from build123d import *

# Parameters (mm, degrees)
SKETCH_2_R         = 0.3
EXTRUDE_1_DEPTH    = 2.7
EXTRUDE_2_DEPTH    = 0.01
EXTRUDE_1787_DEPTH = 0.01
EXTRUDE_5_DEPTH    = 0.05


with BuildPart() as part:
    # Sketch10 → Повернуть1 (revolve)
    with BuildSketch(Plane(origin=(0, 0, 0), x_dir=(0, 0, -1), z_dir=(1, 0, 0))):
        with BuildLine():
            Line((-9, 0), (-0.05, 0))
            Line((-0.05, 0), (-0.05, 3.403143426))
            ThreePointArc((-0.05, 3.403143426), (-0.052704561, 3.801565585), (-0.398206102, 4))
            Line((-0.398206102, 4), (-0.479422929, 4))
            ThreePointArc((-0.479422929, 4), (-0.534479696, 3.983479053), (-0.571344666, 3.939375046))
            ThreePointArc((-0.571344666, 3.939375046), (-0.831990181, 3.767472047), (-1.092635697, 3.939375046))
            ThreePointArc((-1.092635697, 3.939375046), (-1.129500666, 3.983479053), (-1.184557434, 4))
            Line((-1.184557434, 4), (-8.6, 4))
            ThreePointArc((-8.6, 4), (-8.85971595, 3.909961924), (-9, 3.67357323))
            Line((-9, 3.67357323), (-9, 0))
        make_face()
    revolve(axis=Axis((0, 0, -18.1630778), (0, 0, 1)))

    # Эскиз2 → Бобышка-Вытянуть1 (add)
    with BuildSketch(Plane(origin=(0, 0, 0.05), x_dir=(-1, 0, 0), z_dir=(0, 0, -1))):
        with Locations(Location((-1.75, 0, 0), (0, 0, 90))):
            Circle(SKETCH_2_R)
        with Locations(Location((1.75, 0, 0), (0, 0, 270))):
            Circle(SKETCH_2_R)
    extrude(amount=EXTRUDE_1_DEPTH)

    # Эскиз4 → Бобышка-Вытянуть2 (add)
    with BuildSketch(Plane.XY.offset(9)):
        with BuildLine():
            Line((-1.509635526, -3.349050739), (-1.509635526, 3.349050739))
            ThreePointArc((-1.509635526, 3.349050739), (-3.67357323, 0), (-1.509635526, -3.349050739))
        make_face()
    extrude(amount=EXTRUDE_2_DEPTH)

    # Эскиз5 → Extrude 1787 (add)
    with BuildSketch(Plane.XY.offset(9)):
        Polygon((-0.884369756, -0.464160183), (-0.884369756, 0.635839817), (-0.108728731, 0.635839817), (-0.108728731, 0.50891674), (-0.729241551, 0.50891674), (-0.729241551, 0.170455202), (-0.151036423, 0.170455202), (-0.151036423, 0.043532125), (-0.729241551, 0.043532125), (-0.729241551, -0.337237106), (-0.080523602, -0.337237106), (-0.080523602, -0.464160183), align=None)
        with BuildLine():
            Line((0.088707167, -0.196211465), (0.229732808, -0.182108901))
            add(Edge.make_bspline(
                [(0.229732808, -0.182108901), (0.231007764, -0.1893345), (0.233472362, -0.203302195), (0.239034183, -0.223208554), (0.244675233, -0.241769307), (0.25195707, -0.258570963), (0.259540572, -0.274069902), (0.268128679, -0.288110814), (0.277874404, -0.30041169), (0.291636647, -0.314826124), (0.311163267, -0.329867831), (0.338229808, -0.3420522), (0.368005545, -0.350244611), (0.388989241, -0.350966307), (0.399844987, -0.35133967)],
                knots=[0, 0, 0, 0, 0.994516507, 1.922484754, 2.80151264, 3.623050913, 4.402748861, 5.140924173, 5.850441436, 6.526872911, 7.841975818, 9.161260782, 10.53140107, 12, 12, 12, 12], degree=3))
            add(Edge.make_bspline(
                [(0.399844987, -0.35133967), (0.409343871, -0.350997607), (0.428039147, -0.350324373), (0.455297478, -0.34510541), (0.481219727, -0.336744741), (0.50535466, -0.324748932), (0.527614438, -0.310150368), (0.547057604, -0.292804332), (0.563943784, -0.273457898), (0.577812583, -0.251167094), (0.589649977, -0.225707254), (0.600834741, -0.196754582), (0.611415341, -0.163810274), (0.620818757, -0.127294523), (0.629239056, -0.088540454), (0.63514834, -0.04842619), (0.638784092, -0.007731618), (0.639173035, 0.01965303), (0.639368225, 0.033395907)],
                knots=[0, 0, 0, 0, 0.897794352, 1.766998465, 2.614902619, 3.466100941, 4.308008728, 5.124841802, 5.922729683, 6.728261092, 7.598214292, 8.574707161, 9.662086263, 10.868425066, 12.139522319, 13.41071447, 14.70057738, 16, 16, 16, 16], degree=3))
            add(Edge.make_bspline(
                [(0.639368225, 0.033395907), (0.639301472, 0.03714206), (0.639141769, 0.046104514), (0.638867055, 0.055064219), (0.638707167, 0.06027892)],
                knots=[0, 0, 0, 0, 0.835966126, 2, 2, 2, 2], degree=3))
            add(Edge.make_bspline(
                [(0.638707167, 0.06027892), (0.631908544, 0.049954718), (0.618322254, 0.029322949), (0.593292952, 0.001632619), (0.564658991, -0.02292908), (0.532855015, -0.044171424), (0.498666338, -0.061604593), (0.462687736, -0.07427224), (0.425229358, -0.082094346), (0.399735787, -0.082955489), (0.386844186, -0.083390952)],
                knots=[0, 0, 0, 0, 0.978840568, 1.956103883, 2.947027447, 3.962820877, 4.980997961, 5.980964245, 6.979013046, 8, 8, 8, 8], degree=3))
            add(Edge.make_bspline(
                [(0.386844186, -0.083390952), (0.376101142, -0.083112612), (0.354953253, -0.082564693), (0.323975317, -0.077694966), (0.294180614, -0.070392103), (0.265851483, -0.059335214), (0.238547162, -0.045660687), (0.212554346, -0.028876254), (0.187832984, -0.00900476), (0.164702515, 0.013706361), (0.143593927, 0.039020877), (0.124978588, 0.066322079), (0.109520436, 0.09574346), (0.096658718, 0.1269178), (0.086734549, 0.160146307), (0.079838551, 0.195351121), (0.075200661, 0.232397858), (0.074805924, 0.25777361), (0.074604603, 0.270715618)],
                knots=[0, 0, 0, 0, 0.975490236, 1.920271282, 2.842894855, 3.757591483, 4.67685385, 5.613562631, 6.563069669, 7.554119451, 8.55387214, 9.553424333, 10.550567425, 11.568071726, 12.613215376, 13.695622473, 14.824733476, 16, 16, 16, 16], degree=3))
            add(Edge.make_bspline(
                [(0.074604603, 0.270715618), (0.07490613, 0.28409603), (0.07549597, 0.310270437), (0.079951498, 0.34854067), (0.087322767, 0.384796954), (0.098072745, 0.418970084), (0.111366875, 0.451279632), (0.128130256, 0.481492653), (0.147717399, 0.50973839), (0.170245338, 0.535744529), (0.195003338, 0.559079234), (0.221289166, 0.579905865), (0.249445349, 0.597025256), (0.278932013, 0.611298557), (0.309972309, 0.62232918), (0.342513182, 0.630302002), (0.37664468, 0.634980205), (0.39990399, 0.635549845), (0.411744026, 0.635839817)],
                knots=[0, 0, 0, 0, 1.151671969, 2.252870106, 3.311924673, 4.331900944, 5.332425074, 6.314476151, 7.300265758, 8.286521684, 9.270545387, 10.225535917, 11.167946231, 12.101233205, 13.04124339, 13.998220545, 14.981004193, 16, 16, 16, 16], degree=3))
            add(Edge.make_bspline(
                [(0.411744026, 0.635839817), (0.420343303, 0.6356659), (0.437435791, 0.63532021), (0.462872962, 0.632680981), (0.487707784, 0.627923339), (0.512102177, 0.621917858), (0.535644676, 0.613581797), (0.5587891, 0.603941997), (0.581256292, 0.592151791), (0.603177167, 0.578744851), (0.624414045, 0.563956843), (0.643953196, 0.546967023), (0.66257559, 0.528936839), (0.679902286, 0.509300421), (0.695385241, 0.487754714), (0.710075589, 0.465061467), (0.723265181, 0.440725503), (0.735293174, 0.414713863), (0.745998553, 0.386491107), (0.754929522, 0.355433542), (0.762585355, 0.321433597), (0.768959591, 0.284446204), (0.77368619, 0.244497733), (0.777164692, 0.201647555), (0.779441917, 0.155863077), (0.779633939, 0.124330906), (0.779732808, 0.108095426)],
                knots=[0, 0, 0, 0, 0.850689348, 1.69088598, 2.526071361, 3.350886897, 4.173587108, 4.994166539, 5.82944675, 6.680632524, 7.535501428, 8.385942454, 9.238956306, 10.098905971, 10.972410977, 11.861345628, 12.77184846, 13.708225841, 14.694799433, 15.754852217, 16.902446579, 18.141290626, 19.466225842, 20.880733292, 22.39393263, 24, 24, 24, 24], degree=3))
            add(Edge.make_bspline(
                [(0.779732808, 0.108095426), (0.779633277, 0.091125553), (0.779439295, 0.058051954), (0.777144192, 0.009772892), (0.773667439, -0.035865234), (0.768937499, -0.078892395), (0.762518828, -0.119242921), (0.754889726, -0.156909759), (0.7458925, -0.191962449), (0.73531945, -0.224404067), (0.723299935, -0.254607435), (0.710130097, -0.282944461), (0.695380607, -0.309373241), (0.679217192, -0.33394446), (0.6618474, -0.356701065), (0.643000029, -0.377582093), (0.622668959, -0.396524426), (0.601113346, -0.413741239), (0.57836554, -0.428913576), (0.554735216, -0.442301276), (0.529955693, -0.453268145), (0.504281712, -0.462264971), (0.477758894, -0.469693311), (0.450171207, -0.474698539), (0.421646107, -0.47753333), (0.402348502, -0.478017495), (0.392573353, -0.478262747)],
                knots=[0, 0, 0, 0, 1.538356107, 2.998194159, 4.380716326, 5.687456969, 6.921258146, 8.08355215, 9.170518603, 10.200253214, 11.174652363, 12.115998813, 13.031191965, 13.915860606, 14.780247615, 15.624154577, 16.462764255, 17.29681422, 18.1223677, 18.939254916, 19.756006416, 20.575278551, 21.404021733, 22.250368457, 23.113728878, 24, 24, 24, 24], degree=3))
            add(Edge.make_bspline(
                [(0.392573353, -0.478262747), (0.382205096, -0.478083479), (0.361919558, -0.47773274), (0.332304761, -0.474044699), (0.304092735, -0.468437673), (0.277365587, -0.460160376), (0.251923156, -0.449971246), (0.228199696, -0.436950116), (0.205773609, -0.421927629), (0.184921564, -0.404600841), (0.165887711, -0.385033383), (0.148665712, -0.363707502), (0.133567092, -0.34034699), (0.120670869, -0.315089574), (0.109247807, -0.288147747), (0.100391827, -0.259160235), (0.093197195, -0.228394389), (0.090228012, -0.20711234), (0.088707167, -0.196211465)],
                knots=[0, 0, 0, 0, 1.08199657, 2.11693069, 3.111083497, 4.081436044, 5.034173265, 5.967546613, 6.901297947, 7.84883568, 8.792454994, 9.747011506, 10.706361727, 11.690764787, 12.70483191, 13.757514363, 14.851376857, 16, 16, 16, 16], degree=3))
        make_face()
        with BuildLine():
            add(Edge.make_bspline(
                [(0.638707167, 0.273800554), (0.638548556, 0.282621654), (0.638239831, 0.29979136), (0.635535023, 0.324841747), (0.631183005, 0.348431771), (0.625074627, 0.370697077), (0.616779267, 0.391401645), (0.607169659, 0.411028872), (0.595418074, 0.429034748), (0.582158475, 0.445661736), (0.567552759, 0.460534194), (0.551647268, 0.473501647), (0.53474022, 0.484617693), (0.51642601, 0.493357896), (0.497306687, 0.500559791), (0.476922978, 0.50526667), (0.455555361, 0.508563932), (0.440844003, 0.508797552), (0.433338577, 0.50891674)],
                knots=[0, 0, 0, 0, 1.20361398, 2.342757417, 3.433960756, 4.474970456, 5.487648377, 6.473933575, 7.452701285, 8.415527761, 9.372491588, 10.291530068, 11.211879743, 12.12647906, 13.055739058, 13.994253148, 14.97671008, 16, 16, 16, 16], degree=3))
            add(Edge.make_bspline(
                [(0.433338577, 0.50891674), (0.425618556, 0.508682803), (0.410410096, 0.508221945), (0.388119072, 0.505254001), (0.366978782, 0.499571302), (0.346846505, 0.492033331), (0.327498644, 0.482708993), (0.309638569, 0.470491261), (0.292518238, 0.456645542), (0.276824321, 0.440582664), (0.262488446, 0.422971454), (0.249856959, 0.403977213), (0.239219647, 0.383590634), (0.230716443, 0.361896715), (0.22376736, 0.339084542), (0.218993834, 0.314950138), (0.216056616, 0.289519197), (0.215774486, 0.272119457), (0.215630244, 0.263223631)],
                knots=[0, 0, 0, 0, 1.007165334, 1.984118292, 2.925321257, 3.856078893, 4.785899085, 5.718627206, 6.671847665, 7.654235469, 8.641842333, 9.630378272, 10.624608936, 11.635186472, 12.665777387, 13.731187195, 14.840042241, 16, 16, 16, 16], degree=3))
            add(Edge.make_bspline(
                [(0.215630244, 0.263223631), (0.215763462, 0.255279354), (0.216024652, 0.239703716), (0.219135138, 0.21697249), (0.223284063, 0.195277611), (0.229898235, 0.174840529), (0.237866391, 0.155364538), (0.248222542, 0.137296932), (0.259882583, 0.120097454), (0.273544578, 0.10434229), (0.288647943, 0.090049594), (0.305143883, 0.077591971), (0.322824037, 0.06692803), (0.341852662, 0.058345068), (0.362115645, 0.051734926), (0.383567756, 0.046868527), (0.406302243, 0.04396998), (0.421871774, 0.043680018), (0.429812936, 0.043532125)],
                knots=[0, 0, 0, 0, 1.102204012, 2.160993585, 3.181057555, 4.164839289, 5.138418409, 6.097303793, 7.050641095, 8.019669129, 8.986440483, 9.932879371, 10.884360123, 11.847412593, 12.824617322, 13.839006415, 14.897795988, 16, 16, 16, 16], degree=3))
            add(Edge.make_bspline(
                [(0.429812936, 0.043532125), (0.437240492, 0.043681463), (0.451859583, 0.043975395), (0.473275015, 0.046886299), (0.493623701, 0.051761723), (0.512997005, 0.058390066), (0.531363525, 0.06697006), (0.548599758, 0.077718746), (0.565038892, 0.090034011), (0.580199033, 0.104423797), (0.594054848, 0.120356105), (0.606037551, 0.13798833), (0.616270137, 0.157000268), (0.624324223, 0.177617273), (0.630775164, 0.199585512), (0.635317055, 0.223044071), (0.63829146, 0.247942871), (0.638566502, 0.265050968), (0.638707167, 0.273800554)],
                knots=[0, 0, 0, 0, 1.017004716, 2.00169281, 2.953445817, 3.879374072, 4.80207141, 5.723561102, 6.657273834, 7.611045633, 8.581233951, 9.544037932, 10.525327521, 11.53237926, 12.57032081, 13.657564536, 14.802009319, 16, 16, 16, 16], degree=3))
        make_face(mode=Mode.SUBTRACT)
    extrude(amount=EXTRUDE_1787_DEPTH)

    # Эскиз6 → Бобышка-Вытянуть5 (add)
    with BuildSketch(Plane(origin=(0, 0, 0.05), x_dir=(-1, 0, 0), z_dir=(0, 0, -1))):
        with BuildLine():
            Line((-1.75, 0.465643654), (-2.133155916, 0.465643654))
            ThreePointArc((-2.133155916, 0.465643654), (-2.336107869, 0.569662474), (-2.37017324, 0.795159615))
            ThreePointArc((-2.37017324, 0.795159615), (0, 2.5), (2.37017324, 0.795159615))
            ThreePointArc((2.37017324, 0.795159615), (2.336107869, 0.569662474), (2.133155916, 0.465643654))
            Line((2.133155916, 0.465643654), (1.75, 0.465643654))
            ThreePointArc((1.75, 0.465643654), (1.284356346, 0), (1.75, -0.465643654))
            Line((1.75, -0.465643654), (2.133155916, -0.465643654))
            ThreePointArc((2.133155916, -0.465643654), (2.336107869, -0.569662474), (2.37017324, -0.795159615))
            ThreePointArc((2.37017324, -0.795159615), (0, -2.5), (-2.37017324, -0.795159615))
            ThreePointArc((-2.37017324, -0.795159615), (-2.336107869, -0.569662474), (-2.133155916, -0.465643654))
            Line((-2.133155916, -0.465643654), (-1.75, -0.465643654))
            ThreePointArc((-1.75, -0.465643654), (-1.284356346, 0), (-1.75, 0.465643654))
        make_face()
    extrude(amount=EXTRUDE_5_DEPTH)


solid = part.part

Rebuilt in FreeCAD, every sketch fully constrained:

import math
import FreeCAD as App
import Part
import Sketcher

doc = App.newDocument("Part")
params = doc.addObject("Spreadsheet::Sheet", "Params")
for row, (alias, value) in enumerate([
    ("sketch1_radius", "0.4 mm"),
    ("sketch1_radius2", "0.1 mm"),
    ("sketch1_height", "8.95 mm"),
    ("revolution_angle", "360 deg"),
    ("sketch2_diameter", "0.6 mm"),
    ("pad1_length", "2.7 mm"),
    ("pad2_length", "0.01 mm"),
    ("sketch4_height", "1.1 mm"),
    ("pad3_length", "0.01 mm"),
    ("sketch5_radius", "2.5 mm"),
    ("sketch5_radius2", "0.25 mm"),
    ("pad4_length", "0.05 mm"),
], start=1):
    params.set(f"A{row}", alias)
    params.set(f"B{row}", "=" + value)
    params.setAlias(f"B{row}", alias)

body = doc.addObject("PartDesign::Body", "Body")

# Sketch on YZ plane
sketch1 = body.newObject("Sketcher::SketchObject", "Sketch")
sketch1.AttachmentSupport = (doc.getObject("YZ_Plane"), [""])
sketch1.MapMode = "FlatFace"
sketch1.addGeometry([
    Part.LineSegment(App.Vector(0, 9, 0), App.Vector(0, 0.05, 0)),  # 0
    Part.LineSegment(App.Vector(0, 0.05, 0), App.Vector(3.403143, 0.05, 0)),  # 1
    Part.ArcOfCircle(Part.Circle(App.Vector(3.6, 0.398206, 0), App.Vector(0, 0, 1), 0.4), math.radians(-119.481429), math.radians(0)),  # 2
    Part.LineSegment(App.Vector(4, 0.398206, 0), App.Vector(4, 0.479423, 0)),  # 3
    Part.ArcOfCircle(Part.Circle(App.Vector(3.9, 0.479423, 0), App.Vector(0, 0, 1), 0.1), math.radians(0.000001), math.radians(66.811933)),  # 4
    Part.ArcOfCircle(Part.Circle(App.Vector(4.051024, 0.83199, 0), App.Vector(0, 0, 1), 0.283552), math.radians(113.188066), math.radians(246.811933)),  # 5
    Part.ArcOfCircle(Part.Circle(App.Vector(3.9, 1.184557, 0), App.Vector(0, 0, 1), 0.1), math.radians(-66.811934), math.radians(0)),  # 6
    Part.LineSegment(App.Vector(4, 1.184557, 0), App.Vector(4, 8.6, 0)),  # 7
    Part.ArcOfCircle(Part.Circle(App.Vector(3.600058, 8.606814, 0), App.Vector(0, 0, 1), 0.4), math.radians(-0.976029), math.radians(79.409522)),  # 8
    Part.LineSegment(App.Vector(3.673573, 9, 0), App.Vector(0, 9, 0)),  # 9
], False)
sketch1.addConstraint([
    Sketcher.Constraint("Coincident", 0, 2, 1, 1),
    Sketcher.Constraint("Coincident", 1, 2, 2, 1),
    Sketcher.Constraint("Tangent", 2, 2, 3, 1),
    Sketcher.Constraint("Tangent", 3, 2, 4, 1),
    Sketcher.Constraint("Tangent", 4, 2, 5, 2),
    Sketcher.Constraint("Tangent", 5, 1, 6, 1),
    Sketcher.Constraint("Tangent", 6, 2, 7, 1),
    Sketcher.Constraint("Coincident", 7, 2, 8, 1),
    Sketcher.Constraint("Coincident", 8, 2, 9, 1),
    Sketcher.Constraint("Coincident", 9, 2, 0, 1),
    Sketcher.Constraint("Vertical", 0),
    Sketcher.Constraint("Horizontal", 1),
    Sketcher.Constraint("Vertical", 3),
    Sketcher.Constraint("Vertical", 7),
    Sketcher.Constraint("Horizontal", 9),
    Sketcher.Constraint("Equal", 4, 6),
    Sketcher.Constraint("Equal", 2, 8),
    Sketcher.Constraint("PointOnObject", 0, 2, -2),
    Sketcher.Constraint("Vertical", 4, 3, 6, 3),
    Sketcher.Constraint("Radius", 2, 0.4),
    Sketcher.Constraint("Radius", 4, 0.1),
    Sketcher.Constraint("DistanceX", -1, 1, 2, 2, 4.0),
    Sketcher.Constraint("DistanceY", -1, 1, 8, 2, 9.0),
    Sketcher.Constraint("DistanceY", 0, 2, 0, 1, 8.95),
    Sketcher.Constraint("DistanceY", -1, 1, 7, 2, 8.6),
    Sketcher.Constraint("Radius", 5, 0.283552),
    Sketcher.Constraint("DistanceX", 8, 2, 5, 1, 0.265802),
    Sketcher.Constraint("DistanceX", 1, 1, 1, 2, 3.403143),
    Sketcher.Constraint("DistanceX", 9, 2, 9, 1, 3.673573),
    Sketcher.Constraint("DistanceY", 3, 1, 3, 2, 0.081217),
])
sketch1.setExpression("Constraints[19]", "Params.sketch1_radius")
sketch1.setExpression("Constraints[20]", "Params.sketch1_radius2")
sketch1.setExpression("Constraints[23]", "Params.sketch1_height")
revolution = body.newObject("PartDesign::Revolution", "Revolution")
revolution.Profile = sketch1
revolution.ReferenceAxis = (sketch1, ["V_Axis"])
revolution.setExpression("Angle", "Params.revolution_angle")

# Sketch on XY plane
sketch2 = body.newObject("Sketcher::SketchObject", "Sketch001")
sketch2.AttachmentSupport = (doc.getObject("XY_Plane"), [""])
sketch2.MapMode = "FlatFace"
sketch2.AttachmentOffset = App.Placement(App.Vector(0, 0, 0.05), App.Rotation())
sketch2.addGeometry([
    Part.Circle(App.Vector(1.75, 0, 0), App.Vector(0, 0, 1), 0.3),
    Part.Circle(App.Vector(-1.75, 0, 0), App.Vector(0, 0, 1), 0.3),
], False)
sketch2.addConstraint([
    Sketcher.Constraint("Equal", 0, 1),
    Sketcher.Constraint("Symmetric", 0, 3, 1, 3, -1, 1),
    Sketcher.Constraint("PointOnObject", 0, 3, -1),
    Sketcher.Constraint("Diameter", 0, 0.6),
    Sketcher.Constraint("DistanceX", 1, 3, 0, 3, 3.5),
])
sketch2.setExpression("Constraints[3]", "Params.sketch2_diameter")
pad1 = body.newObject("PartDesign::Pad", "Pad")
pad1.Profile = sketch2
pad1.setExpression("Length", "Params.pad1_length")
pad1.Reversed = True

# Sketch on XY plane
sketch3 = body.newObject("Sketcher::SketchObject", "Sketch002")
sketch3.AttachmentSupport = (doc.getObject("XY_Plane"), [""])
sketch3.MapMode = "FlatFace"
sketch3.AttachmentOffset = App.Placement(App.Vector(0, 0, 9), App.Rotation())
sketch3.addGeometry([
    Part.LineSegment(App.Vector(-1.509636, -3.349051, 0), App.Vector(-1.509636, 3.349051, 0)),
    Part.ArcOfCircle(Part.Circle(App.Vector(0, 0, 0), App.Vector(0, 0, 1), 3.673573), math.radians(114.264195), math.radians(245.735805)),
], False)
sketch3.addConstraint([
    Sketcher.Constraint("Coincident", 0, 1, 1, 2),
    Sketcher.Constraint("Coincident", 1, 1, 0, 2),
    Sketcher.Constraint("Vertical", 0),
    Sketcher.Constraint("Coincident", 1, 3, -1, 1),
    Sketcher.Constraint("DistanceY", 0, 1, 0, 2, 6.698101),
    Sketcher.Constraint("Radius", 1, 3.673573),
])
pad2 = body.newObject("PartDesign::Pad", "Pad001")
pad2.Profile = sketch3
pad2.setExpression("Length", "Params.pad2_length")

# Sketch on XY plane
sketch4 = body.newObject("Sketcher::SketchObject", "Sketch003")
sketch4.AttachmentSupport = (doc.getObject("XY_Plane"), [""])
sketch4.MapMode = "FlatFace"
sketch4.AttachmentOffset = App.Placement(App.Vector(0, 0, 9), App.Rotation())
sketch4.addGeometry([
    Part.LineSegment(App.Vector(-0.88437, 0.63584, 0), App.Vector(-0.88437, -0.46416, 0)),  # 0
    Part.LineSegment(App.Vector(-0.88437, -0.46416, 0), App.Vector(-0.080524, -0.46416, 0)),  # 1
    Part.LineSegment(App.Vector(-0.080524, -0.46416, 0), App.Vector(-0.080524, -0.337237, 0)),  # 2
    Part.LineSegment(App.Vector(-0.080524, -0.337237, 0), App.Vector(-0.729242, -0.337237, 0)),  # 3
    Part.LineSegment(App.Vector(-0.729242, -0.337237, 0), App.Vector(-0.729242, 0.043532, 0)),  # 4
    Part.LineSegment(App.Vector(-0.729242, 0.043532, 0), App.Vector(-0.151036, 0.043532, 0)),  # 5
    Part.LineSegment(App.Vector(-0.151036, 0.043532, 0), App.Vector(-0.151036, 0.170455, 0)),  # 6
    Part.LineSegment(App.Vector(-0.151036, 0.170455, 0), App.Vector(-0.729242, 0.170455, 0)),  # 7
    Part.LineSegment(App.Vector(-0.729242, 0.170455, 0), App.Vector(-0.729242, 0.508917, 0)),  # 8
    Part.LineSegment(App.Vector(-0.729242, 0.508917, 0), App.Vector(-0.108729, 0.508917, 0)),  # 9
    Part.LineSegment(App.Vector(-0.108729, 0.508917, 0), App.Vector(-0.108729, 0.63584, 0)),  # 10
    Part.LineSegment(App.Vector(-0.108729, 0.63584, 0), App.Vector(-0.88437, 0.63584, 0)),  # 11
    Part.LineSegment(App.Vector(0.229733, -0.182109, 0), App.Vector(0.088707, -0.196211, 0)),  # 12
    Part.BSplineCurve([App.Vector(0.392573, -0.478263, 0), App.Vector(0.382205, -0.478083, 0), App.Vector(0.36192, -0.477733, 0), App.Vector(0.332305, -0.474045, 0), App.Vector(0.304093, -0.468438, 0), App.Vector(0.277366, -0.46016, 0), App.Vector(0.251923, -0.449971, 0), App.Vector(0.2282, -0.43695, 0), App.Vector(0.205774, -0.421928, 0), App.Vector(0.184922, -0.404601, 0), App.Vector(0.165888, -0.385033, 0), App.Vector(0.148666, -0.363708, 0), App.Vector(0.133567, -0.340347, 0), App.Vector(0.120671, -0.31509, 0), App.Vector(0.109248, -0.288148, 0), App.Vector(0.100392, -0.25916, 0), App.Vector(0.093197, -0.228394, 0), App.Vector(0.090228, -0.207112, 0), App.Vector(0.088707, -0.196211, 0)], [4, 1, 1, 1, 1, 1, 1, 1, 1, 1, 1, 1, 1, 1, 1, 1, 4], [0, 1.08199657, 2.11693069, 3.111083497, 4.081436044, 5.034173265, 5.967546613, 6.901297947, 7.84883568, 8.792454994, 9.747011506, 10.706361727, 11.690764787, 12.70483191, 13.757514363, 14.851376857, 16], False, 3, [1, 1, 1, 1, 1, 1, 1, 1, 1, 1, 1, 1, 1, 1, 1, 1, 1, 1, 1], False),  # 13
    Part.BSplineCurve([App.Vector(0.779733, 0.108095, 0), App.Vector(0.779633, 0.091126, 0), App.Vector(0.779439, 0.058052, 0), App.Vector(0.777144, 0.009773, 0), App.Vector(0.773667, -0.035865, 0), App.Vector(0.768937, -0.078892, 0), App.Vector(0.762519, -0.119243, 0), App.Vector(0.75489, -0.15691, 0), App.Vector(0.745892, -0.191962, 0), App.Vector(0.735319, -0.224404, 0), App.Vector(0.7233, -0.254607, 0), App.Vector(0.71013, -0.282944, 0), App.Vector(0.695381, -0.309373, 0), App.Vector(0.679217, -0.333944, 0), App.Vector(0.661847, -0.356701, 0), App.Vector(0.643, -0.377582, 0), App.Vector(0.622669, -0.396524, 0), App.Vector(0.601113, -0.413741, 0), App.Vector(0.578366, -0.428914, 0), App.Vector(0.554735, -0.442301, 0), App.Vector(0.529956, -0.453268, 0), App.Vector(0.504282, -0.462265, 0), App.Vector(0.477759, -0.469693, 0), App.Vector(0.450171, -0.474699, 0), App.Vector(0.421646, -0.477533, 0), App.Vector(0.402349, -0.478017, 0), App.Vector(0.392573, -0.478263, 0)], [4, 1, 1, 1, 1, 1, 1, 1, 1, 1, 1, 1, 1, 1, 1, 1, 1, 1, 1, 1, 1, 1, 1, 1, 4], [0, 1.538356107, 2.998194159, 4.380716326, 5.687456969, 6.921258146, 8.08355215, 9.170518603, 10.200253214, 11.174652363, 12.115998813, 13.031191965, 13.915860606, 14.780247615, 15.624154577, 16.462764255, 17.29681422, 18.1223677, 18.939254916, 19.756006416, 20.575278551, 21.404021733, 22.250368457, 23.113728878, 24], False, 3, [1, 1, 1, 1, 1, 1, 1, 1, 1, 1, 1, 1, 1, 1, 1, 1, 1, 1, 1, 1, 1, 1, 1, 1, 1, 1, 1], False),  # 14
    Part.BSplineCurve([App.Vector(0.411744, 0.63584, 0), App.Vector(0.420343, 0.635666, 0), App.Vector(0.437436, 0.63532, 0), App.Vector(0.462873, 0.632681, 0), App.Vector(0.487708, 0.627923, 0), App.Vector(0.512102, 0.621918, 0), App.Vector(0.535645, 0.613582, 0), App.Vector(0.558789, 0.603942, 0), App.Vector(0.581256, 0.592152, 0), App.Vector(0.603177, 0.578745, 0), App.Vector(0.624414, 0.563957, 0), App.Vector(0.643953, 0.546967, 0), App.Vector(0.662576, 0.528937, 0), App.Vector(0.679902, 0.5093, 0), App.Vector(0.695385, 0.487755, 0), App.Vector(0.710076, 0.465061, 0), App.Vector(0.723265, 0.440726, 0), App.Vector(0.735293, 0.414714, 0), App.Vector(0.745999, 0.386491, 0), App.Vector(0.75493, 0.355434, 0), App.Vector(0.762585, 0.321434, 0), App.Vector(0.76896, 0.284446, 0), App.Vector(0.773686, 0.244498, 0), App.Vector(0.777165, 0.201648, 0), App.Vector(0.779442, 0.155863, 0), App.Vector(0.779634, 0.124331, 0), App.Vector(0.779733, 0.108095, 0)], [4, 1, 1, 1, 1, 1, 1, 1, 1, 1, 1, 1, 1, 1, 1, 1, 1, 1, 1, 1, 1, 1, 1, 1, 4], [0, 0.850689348, 1.69088598, 2.526071361, 3.350886897, 4.173587108, 4.994166539, 5.82944675, 6.680632524, 7.535501428, 8.385942454, 9.238956306, 10.098905971, 10.972410977, 11.861345628, 12.77184846, 13.708225841, 14.694799433, 15.754852217, 16.902446579, 18.141290626, 19.466225842, 20.880733292, 22.39393263, 24], False, 3, [1, 1, 1, 1, 1, 1, 1, 1, 1, 1, 1, 1, 1, 1, 1, 1, 1, 1, 1, 1, 1, 1, 1, 1, 1, 1, 1], False),  # 15
    Part.BSplineCurve([App.Vector(0.074605, 0.270716, 0), App.Vector(0.074906, 0.284096, 0), App.Vector(0.075496, 0.31027, 0), App.Vector(0.079951, 0.348541, 0), App.Vector(0.087323, 0.384797, 0), App.Vector(0.098073, 0.41897, 0), App.Vector(0.111367, 0.45128, 0), App.Vector(0.12813, 0.481493, 0), App.Vector(0.147717, 0.509738, 0), App.Vector(0.170245, 0.535745, 0), App.Vector(0.195003, 0.559079, 0), App.Vector(0.221289, 0.579906, 0), App.Vector(0.249445, 0.597025, 0), App.Vector(0.278932, 0.611299, 0), App.Vector(0.309972, 0.622329, 0), App.Vector(0.342513, 0.630302, 0), App.Vector(0.376645, 0.63498, 0), App.Vector(0.399904, 0.63555, 0), App.Vector(0.411744, 0.63584, 0)], [4, 1, 1, 1, 1, 1, 1, 1, 1, 1, 1, 1, 1, 1, 1, 1, 4], [0, 1.151671969, 2.252870106, 3.311924673, 4.331900944, 5.332425074, 6.314476151, 7.300265758, 8.286521684, 9.270545387, 10.225535917, 11.167946231, 12.101233205, 13.04124339, 13.998220545, 14.981004193, 16], False, 3, [1, 1, 1, 1, 1, 1, 1, 1, 1, 1, 1, 1, 1, 1, 1, 1, 1, 1, 1], False),  # 16
    Part.BSplineCurve([App.Vector(0.386844, -0.083391, 0), App.Vector(0.376101, -0.083113, 0), App.Vector(0.354953, -0.082565, 0), App.Vector(0.323975, -0.077695, 0), App.Vector(0.294181, -0.070392, 0), App.Vector(0.265851, -0.059335, 0), App.Vector(0.238547, -0.045661, 0), App.Vector(0.212554, -0.028876, 0), App.Vector(0.187833, -0.009005, 0), App.Vector(0.164703, 0.013706, 0), App.Vector(0.143594, 0.039021, 0), App.Vector(0.124979, 0.066322, 0), App.Vector(0.10952, 0.095743, 0), App.Vector(0.096659, 0.126918, 0), App.Vector(0.086735, 0.160146, 0), App.Vector(0.079839, 0.195351, 0), App.Vector(0.075201, 0.232398, 0), App.Vector(0.074806, 0.257774, 0), App.Vector(0.074605, 0.270716, 0)], [4, 1, 1, 1, 1, 1, 1, 1, 1, 1, 1, 1, 1, 1, 1, 1, 4], [0, 0.975490236, 1.920271282, 2.842894855, 3.757591483, 4.67685385, 5.613562631, 6.563069669, 7.554119451, 8.55387214, 9.553424333, 10.550567425, 11.568071726, 12.613215376, 13.695622473, 14.824733476, 16], False, 3, [1, 1, 1, 1, 1, 1, 1, 1, 1, 1, 1, 1, 1, 1, 1, 1, 1, 1, 1], False),  # 17
    Part.BSplineCurve([App.Vector(0.638707, 0.060279, 0), App.Vector(0.631909, 0.049955, 0), App.Vector(0.618322, 0.029323, 0), App.Vector(0.593293, 0.001633, 0), App.Vector(0.564659, -0.022929, 0), App.Vector(0.532855, -0.044171, 0), App.Vector(0.498666, -0.061605, 0), App.Vector(0.462688, -0.074272, 0), App.Vector(0.425229, -0.082094, 0), App.Vector(0.399736, -0.082955, 0), App.Vector(0.386844, -0.083391, 0)], [4, 1, 1, 1, 1, 1, 1, 1, 4], [0, 0.978840568, 1.956103883, 2.947027447, 3.962820877, 4.980997961, 5.980964245, 6.979013046, 8], False, 3, [1, 1, 1, 1, 1, 1, 1, 1, 1, 1, 1], False),  # 18
    Part.BSplineCurve([App.Vector(0.639368, 0.033396, 0), App.Vector(0.639301, 0.037142, 0), App.Vector(0.639142, 0.046105, 0), App.Vector(0.638867, 0.055064, 0), App.Vector(0.638707, 0.060279, 0)], [4, 1, 4], [0, 0.835966126, 2], False, 3, [1, 1, 1, 1, 1], False),  # 19
    Part.BSplineCurve([App.Vector(0.399845, -0.35134, 0), App.Vector(0.409344, -0.350998, 0), App.Vector(0.428039, -0.350324, 0), App.Vector(0.455297, -0.345105, 0), App.Vector(0.48122, -0.336745, 0), App.Vector(0.505355, -0.324749, 0), App.Vector(0.527614, -0.31015, 0), App.Vector(0.547058, -0.292804, 0), App.Vector(0.563944, -0.273458, 0), App.Vector(0.577813, -0.251167, 0), App.Vector(0.58965, -0.225707, 0), App.Vector(0.600835, -0.196755, 0), App.Vector(0.611415, -0.16381, 0), App.Vector(0.620819, -0.127295, 0), App.Vector(0.629239, -0.08854, 0), App.Vector(0.635148, -0.048426, 0), App.Vector(0.638784, -0.007732, 0), App.Vector(0.639173, 0.019653, 0), App.Vector(0.639368, 0.033396, 0)], [4, 1, 1, 1, 1, 1, 1, 1, 1, 1, 1, 1, 1, 1, 1, 1, 4], [0, 0.897794352, 1.766998465, 2.614902619, 3.466100941, 4.308008728, 5.124841802, 5.922729683, 6.728261092, 7.598214292, 8.574707161, 9.662086263, 10.868425066, 12.139522319, 13.41071447, 14.70057738, 16], False, 3, [1, 1, 1, 1, 1, 1, 1, 1, 1, 1, 1, 1, 1, 1, 1, 1, 1, 1, 1], False),  # 20
    Part.BSplineCurve([App.Vector(0.229733, -0.182109, 0), App.Vector(0.231008, -0.189334, 0), App.Vector(0.233472, -0.203302, 0), App.Vector(0.239034, -0.223209, 0), App.Vector(0.244675, -0.241769, 0), App.Vector(0.251957, -0.258571, 0), App.Vector(0.259541, -0.27407, 0), App.Vector(0.268129, -0.288111, 0), App.Vector(0.277874, -0.300412, 0), App.Vector(0.291637, -0.314826, 0), App.Vector(0.311163, -0.329868, 0), App.Vector(0.33823, -0.342052, 0), App.Vector(0.368006, -0.350245, 0), App.Vector(0.388989, -0.350966, 0), App.Vector(0.399845, -0.35134, 0)], [4, 1, 1, 1, 1, 1, 1, 1, 1, 1, 1, 1, 4], [0, 0.994516507, 1.922484754, 2.80151264, 3.623050913, 4.402748861, 5.140924173, 5.850441436, 6.526872911, 7.841975818, 9.161260782, 10.53140107, 12], False, 3, [1, 1, 1, 1, 1, 1, 1, 1, 1, 1, 1, 1, 1, 1, 1], False),  # 21
    Part.BSplineCurve([App.Vector(0.429813, 0.043532, 0), App.Vector(0.43724, 0.043681, 0), App.Vector(0.45186, 0.043975, 0), App.Vector(0.473275, 0.046886, 0), App.Vector(0.493624, 0.051762, 0), App.Vector(0.512997, 0.05839, 0), App.Vector(0.531364, 0.06697, 0), App.Vector(0.5486, 0.077719, 0), App.Vector(0.565039, 0.090034, 0), App.Vector(0.580199, 0.104424, 0), App.Vector(0.594055, 0.120356, 0), App.Vector(0.606038, 0.137988, 0), App.Vector(0.61627, 0.157, 0), App.Vector(0.624324, 0.177617, 0), App.Vector(0.630775, 0.199586, 0), App.Vector(0.635317, 0.223044, 0), App.Vector(0.638291, 0.247943, 0), App.Vector(0.638567, 0.265051, 0), App.Vector(0.638707, 0.273801, 0)], [4, 1, 1, 1, 1, 1, 1, 1, 1, 1, 1, 1, 1, 1, 1, 1, 4], [0, 1.017004716, 2.00169281, 2.953445817, 3.879374072, 4.80207141, 5.723561102, 6.657273834, 7.611045633, 8.581233951, 9.544037932, 10.525327521, 11.53237926, 12.57032081, 13.657564536, 14.802009319, 16], False, 3, [1, 1, 1, 1, 1, 1, 1, 1, 1, 1, 1, 1, 1, 1, 1, 1, 1, 1, 1], False),  # 22
    Part.BSplineCurve([App.Vector(0.21563, 0.263224, 0), App.Vector(0.215763, 0.255279, 0), App.Vector(0.216025, 0.239704, 0), App.Vector(0.219135, 0.216972, 0), App.Vector(0.223284, 0.195278, 0), App.Vector(0.229898, 0.174841, 0), App.Vector(0.237866, 0.155365, 0), App.Vector(0.248223, 0.137297, 0), App.Vector(0.259883, 0.120097, 0), App.Vector(0.273545, 0.104342, 0), App.Vector(0.288648, 0.09005, 0), App.Vector(0.305144, 0.077592, 0), App.Vector(0.322824, 0.066928, 0), App.Vector(0.341853, 0.058345, 0), App.Vector(0.362116, 0.051735, 0), App.Vector(0.383568, 0.046869, 0), App.Vector(0.406302, 0.04397, 0), App.Vector(0.421872, 0.04368, 0), App.Vector(0.429813, 0.043532, 0)], [4, 1, 1, 1, 1, 1, 1, 1, 1, 1, 1, 1, 1, 1, 1, 1, 4], [0, 1.102204012, 2.160993585, 3.181057555, 4.164839289, 5.138418409, 6.097303793, 7.050641095, 8.019669129, 8.986440483, 9.932879371, 10.884360123, 11.847412593, 12.824617322, 13.839006415, 14.897795988, 16], False, 3, [1, 1, 1, 1, 1, 1, 1, 1, 1, 1, 1, 1, 1, 1, 1, 1, 1, 1, 1], False),  # 23
    Part.BSplineCurve([App.Vector(0.433339, 0.508917, 0), App.Vector(0.425619, 0.508683, 0), App.Vector(0.41041, 0.508222, 0), App.Vector(0.388119, 0.505254, 0), App.Vector(0.366979, 0.499571, 0), App.Vector(0.346847, 0.492033, 0), App.Vector(0.327499, 0.482709, 0), App.Vector(0.309639, 0.470491, 0), App.Vector(0.292518, 0.456646, 0), App.Vector(0.276824, 0.440583, 0), App.Vector(0.262488, 0.422971, 0), App.Vector(0.249857, 0.403977, 0), App.Vector(0.23922, 0.383591, 0), App.Vector(0.230716, 0.361897, 0), App.Vector(0.223767, 0.339085, 0), App.Vector(0.218994, 0.31495, 0), App.Vector(0.216057, 0.289519, 0), App.Vector(0.215774, 0.272119, 0), App.Vector(0.21563, 0.263224, 0)], [4, 1, 1, 1, 1, 1, 1, 1, 1, 1, 1, 1, 1, 1, 1, 1, 4], [0, 1.007165334, 1.984118292, 2.925321257, 3.856078893, 4.785899085, 5.718627206, 6.671847665, 7.654235469, 8.641842333, 9.630378272, 10.624608936, 11.635186472, 12.665777387, 13.731187195, 14.840042241, 16], False, 3, [1, 1, 1, 1, 1, 1, 1, 1, 1, 1, 1, 1, 1, 1, 1, 1, 1, 1, 1], False),  # 24
    Part.BSplineCurve([App.Vector(0.638707, 0.273801, 0), App.Vector(0.638549, 0.282622, 0), App.Vector(0.63824, 0.299791, 0), App.Vector(0.635535, 0.324842, 0), App.Vector(0.631183, 0.348432, 0), App.Vector(0.625075, 0.370697, 0), App.Vector(0.616779, 0.391402, 0), App.Vector(0.60717, 0.411029, 0), App.Vector(0.595418, 0.429035, 0), App.Vector(0.582158, 0.445662, 0), App.Vector(0.567553, 0.460534, 0), App.Vector(0.551647, 0.473502, 0), App.Vector(0.53474, 0.484618, 0), App.Vector(0.516426, 0.493358, 0), App.Vector(0.497307, 0.50056, 0), App.Vector(0.476923, 0.505267, 0), App.Vector(0.455555, 0.508564, 0), App.Vector(0.440844, 0.508798, 0), App.Vector(0.433339, 0.508917, 0)], [4, 1, 1, 1, 1, 1, 1, 1, 1, 1, 1, 1, 1, 1, 1, 1, 4], [0, 1.20361398, 2.342757417, 3.433960756, 4.474970456, 5.487648377, 6.473933575, 7.452701285, 8.415527761, 9.372491588, 10.291530068, 11.211879743, 12.12647906, 13.055739058, 13.994253148, 14.97671008, 16], False, 3, [1, 1, 1, 1, 1, 1, 1, 1, 1, 1, 1, 1, 1, 1, 1, 1, 1, 1, 1], False),  # 25
], False)
sketch4.addConstraint([
    Sketcher.Constraint("Block", 13),
    Sketcher.Constraint("Block", 14),
    Sketcher.Constraint("Block", 15),
    Sketcher.Constraint("Block", 16),
    Sketcher.Constraint("Block", 17),
    Sketcher.Constraint("Block", 18),
    Sketcher.Constraint("Block", 19),
    Sketcher.Constraint("Block", 20),
    Sketcher.Constraint("Block", 21),
    Sketcher.Constraint("Block", 22),
    Sketcher.Constraint("Block", 23),
    Sketcher.Constraint("Block", 24),
    Sketcher.Constraint("Block", 25),
    Sketcher.Constraint("Coincident", 0, 2, 1, 1),
    Sketcher.Constraint("Coincident", 1, 2, 2, 1),
    Sketcher.Constraint("Coincident", 2, 2, 3, 1),
    Sketcher.Constraint("Coincident", 3, 2, 4, 1),
    Sketcher.Constraint("Coincident", 4, 2, 5, 1),
    Sketcher.Constraint("Coincident", 5, 2, 6, 1),
    Sketcher.Constraint("Coincident", 6, 2, 7, 1),
    Sketcher.Constraint("Coincident", 7, 2, 8, 1),
    Sketcher.Constraint("Coincident", 8, 2, 9, 1),
    Sketcher.Constraint("Coincident", 9, 2, 10, 1),
    Sketcher.Constraint("Coincident", 10, 2, 11, 1),
    Sketcher.Constraint("Coincident", 11, 2, 0, 1),
    Sketcher.Constraint("Coincident", 12, 2, 13, 2),
    Sketcher.Constraint("Coincident", 21, 1, 12, 1),
    Sketcher.Constraint("Vertical", 0),
    Sketcher.Constraint("Horizontal", 1),
    Sketcher.Constraint("Vertical", 2),
    Sketcher.Constraint("Horizontal", 3),
    Sketcher.Constraint("Vertical", 4),
    Sketcher.Constraint("Horizontal", 5),
    Sketcher.Constraint("Vertical", 6),
    Sketcher.Constraint("Horizontal", 7),
    Sketcher.Constraint("Vertical", 8),
    Sketcher.Constraint("Horizontal", 9),
    Sketcher.Constraint("Vertical", 10),
    Sketcher.Constraint("Horizontal", 11),
    Sketcher.Constraint("Vertical", 4, 2, 7, 2),
    Sketcher.Constraint("Equal", 2, 6),
    Sketcher.Constraint("Equal", 6, 10),
    Sketcher.Constraint("DistanceY", 0, 2, 0, 1, 1.1),
    Sketcher.Constraint("DistanceX", 11, 2, 11, 1, 0.775641),
    Sketcher.Constraint("DistanceY", 4, 1, 4, 2, 0.380769),
    Sketcher.Constraint("DistanceY", 8, 1, 8, 2, 0.338462),
    Sketcher.Constraint("DistanceX", 1, 1, 1, 2, 0.803846),
    Sketcher.Constraint("DistanceX", 3, 2, 3, 1, 0.648718),
    Sketcher.Constraint("DistanceX", 5, 1, 5, 2, 0.578205),
    Sketcher.Constraint("DistanceX", 0, 2, -1, 1, 0.88437),
    Sketcher.Constraint("DistanceY", 0, 2, -1, 1, 0.46416),
])
sketch4.setExpression("Constraints[42]", "Params.sketch4_height")
pad3 = body.newObject("PartDesign::Pad", "Pad002")
pad3.Profile = sketch4
pad3.setExpression("Length", "Params.pad3_length")

# Sketch on XY plane
sketch5 = body.newObject("Sketcher::SketchObject", "Sketch004")
sketch5.AttachmentSupport = (doc.getObject("XY_Plane"), [""])
sketch5.MapMode = "FlatFace"
sketch5.AttachmentOffset = App.Placement(App.Vector(0, 0, 0.05), App.Rotation())
sketch5.addGeometry([
    Part.LineSegment(App.Vector(2.133156, 0.465644, 0), App.Vector(1.75, 0.465644, 0)),  # 0
    Part.ArcOfCircle(Part.Circle(App.Vector(1.75, 0, 0), App.Vector(0, 0, 1), 0.465644), math.radians(90), math.radians(270)),  # 1
    Part.LineSegment(App.Vector(1.75, -0.465644, 0), App.Vector(2.133156, -0.465644, 0)),  # 2
    Part.ArcOfCircle(Part.Circle(App.Vector(2.133156, -0.715644, 0), App.Vector(0, 0, 1), 0.25), math.radians(-18.545875), math.radians(90)),  # 3
    Part.ArcOfCircle(Part.Circle(App.Vector(0, 0, 0), App.Vector(0, 0, 1), 2.5), math.radians(-161.454125), math.radians(-18.545875)),  # 4
    Part.ArcOfCircle(Part.Circle(App.Vector(-2.133156, -0.715644, 0), App.Vector(0, 0, 1), 0.25), math.radians(90), math.radians(198.545875)),  # 5
    Part.LineSegment(App.Vector(-2.133156, -0.465644, 0), App.Vector(-1.75, -0.465644, 0)),  # 6
    Part.ArcOfCircle(Part.Circle(App.Vector(-1.75, 0, 0), App.Vector(0, 0, 1), 0.465644), math.radians(-90), math.radians(90)),  # 7
    Part.LineSegment(App.Vector(-1.75, 0.465644, 0), App.Vector(-2.133156, 0.465644, 0)),  # 8
    Part.ArcOfCircle(Part.Circle(App.Vector(-2.133156, 0.715644, 0), App.Vector(0, 0, 1), 0.25), math.radians(161.454125), math.radians(270)),  # 9
    Part.ArcOfCircle(Part.Circle(App.Vector(0, 0, 0), App.Vector(0, 0, 1), 2.5), math.radians(18.545875), math.radians(161.454125)),  # 10
    Part.ArcOfCircle(Part.Circle(App.Vector(2.133156, 0.715644, 0), App.Vector(0, 0, 1), 0.25), math.radians(-90), math.radians(18.545875)),  # 11
], False)
sketch5.addConstraint([
    Sketcher.Constraint("Tangent", 0, 2, 1, 1),
    Sketcher.Constraint("Tangent", 1, 2, 2, 1),
    Sketcher.Constraint("Tangent", 2, 2, 3, 2),
    Sketcher.Constraint("Tangent", 3, 1, 4, 2),
    Sketcher.Constraint("Tangent", 4, 1, 5, 2),
    Sketcher.Constraint("Tangent", 5, 1, 6, 1),
    Sketcher.Constraint("Tangent", 6, 2, 7, 1),
    Sketcher.Constraint("Tangent", 7, 2, 8, 1),
    Sketcher.Constraint("Tangent", 8, 2, 9, 2),
    Sketcher.Constraint("Tangent", 9, 1, 10, 2),
    Sketcher.Constraint("Tangent", 10, 1, 11, 2),
    Sketcher.Constraint("Tangent", 11, 1, 0, 1),
    Sketcher.Constraint("Horizontal", 0),
    Sketcher.Constraint("Horizontal", 2),
    Sketcher.Constraint("Horizontal", 6),
    Sketcher.Constraint("Horizontal", 8),
    Sketcher.Constraint("Coincident", 4, 3, -1, 1),
    Sketcher.Constraint("Coincident", 10, 3, -1, 1),
    Sketcher.Constraint("Equal", 3, 5),
    Sketcher.Constraint("Equal", 1, 7),
    Sketcher.Constraint("Equal", 5, 9),
    Sketcher.Constraint("Equal", 4, 10),
    Sketcher.Constraint("Equal", 9, 11),
    Sketcher.Constraint("Symmetric", 1, 3, 7, 3, -1, 1),
    Sketcher.Constraint("PointOnObject", 1, 3, -1),
    Sketcher.Constraint("Radius", 4, 2.5),
    Sketcher.Constraint("Radius", 3, 0.25),
    Sketcher.Constraint("DistanceX", 7, 3, 1, 3, 3.5),
    Sketcher.Constraint("Radius", 1, 0.465644),
])
sketch5.setExpression("Constraints[25]", "Params.sketch5_radius")
sketch5.setExpression("Constraints[26]", "Params.sketch5_radius2")
pad4 = body.newObject("PartDesign::Pad", "Pad003")
pad4.Profile = sketch5
pad4.setExpression("Length", "Params.pad4_length")
pad4.Reversed = True

doc.recompute()
